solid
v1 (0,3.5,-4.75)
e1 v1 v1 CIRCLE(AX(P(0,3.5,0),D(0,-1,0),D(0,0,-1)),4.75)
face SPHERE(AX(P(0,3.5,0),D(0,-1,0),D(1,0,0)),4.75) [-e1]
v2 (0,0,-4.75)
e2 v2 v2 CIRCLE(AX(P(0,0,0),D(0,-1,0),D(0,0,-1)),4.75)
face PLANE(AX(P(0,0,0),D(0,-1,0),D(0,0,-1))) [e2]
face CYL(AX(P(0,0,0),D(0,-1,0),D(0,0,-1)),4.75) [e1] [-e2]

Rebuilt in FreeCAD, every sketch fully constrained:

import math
import FreeCAD as App
import Part
import Sketcher

V = App.Vector
Q = App.Units.Quantity

doc = App.newDocument("Part")
params = doc.addObject("Spreadsheet::Sheet", "Params")
for row, (alias, value) in enumerate([
    ("sketch1_radius", "4.75 mm"),
    ("sketch1_height", "3.5 mm"),
    ("revolution_angle", "360 deg"),
], start=1):
    params.set(f"A{row}", alias)
    params.set(f"B{row}", "=" + value)
    params.setAlias(f"B{row}", alias)

body = doc.addObject("PartDesign::Body", "Body")

sketch1 = body.newObject("Sketcher::SketchObject", "Sketch")
sketch1.AttachmentSupport = (doc.getObject("XY_Plane"), [""])
sketch1.MapMode = "FlatFace"
sketch1.addGeometry([
    Part.LineSegment(V(0, 0, 0), V(4.8, 0, 0)),
    Part.LineSegment(V(4.8, 0, 0), V(4.8, 3.5, 0)),
    Part.ArcOfCircle(Part.Circle(V(0, 3.5, 0), V(0, 0, 1), 4.7), math.radians(0), math.radians(90)),
    Part.LineSegment(V(0, 8.2, 0), V(0, 0, 0)),
], False)
sketch1.addConstraint([
    Sketcher.Constraint("Coincident", 0, 2, 1, 1),
    Sketcher.Constraint("Tangent", 1, 2, 2, 1),
    Sketcher.Constraint("Coincident", 2, 2, 3, 1),
    Sketcher.Constraint("Coincident", 3, 2, 0, 1),
    Sketcher.Constraint("Horizontal", 0),
    Sketcher.Constraint("Vertical", 1),
    Sketcher.Constraint("Vertical", 3),
    Sketcher.Constraint("Coincident", 3, 2, -1, 1),
    Sketcher.Constraint("PointOnObject", 2, 3, -2),
    Sketcher.Constraint("Radius", 2, Q("4.75 mm")),
    Sketcher.Constraint("DistanceY", 1, 1, 1, 2, Q("3.5 mm")),
])
sketch1.setExpression("Constraints[9]", "Params.sketch1_radius")
sketch1.setExpression("Constraints[10]", "Params.sketch1_height")
revolution = body.newObject("PartDesign::Revolution", "Revolution")
revolution.Profile = sketch1
revolution.ReferenceAxis = (sketch1, ["V_Axis"])
revolution.setExpression("Angle", "Params.revolution_angle")

doc.recompute()
